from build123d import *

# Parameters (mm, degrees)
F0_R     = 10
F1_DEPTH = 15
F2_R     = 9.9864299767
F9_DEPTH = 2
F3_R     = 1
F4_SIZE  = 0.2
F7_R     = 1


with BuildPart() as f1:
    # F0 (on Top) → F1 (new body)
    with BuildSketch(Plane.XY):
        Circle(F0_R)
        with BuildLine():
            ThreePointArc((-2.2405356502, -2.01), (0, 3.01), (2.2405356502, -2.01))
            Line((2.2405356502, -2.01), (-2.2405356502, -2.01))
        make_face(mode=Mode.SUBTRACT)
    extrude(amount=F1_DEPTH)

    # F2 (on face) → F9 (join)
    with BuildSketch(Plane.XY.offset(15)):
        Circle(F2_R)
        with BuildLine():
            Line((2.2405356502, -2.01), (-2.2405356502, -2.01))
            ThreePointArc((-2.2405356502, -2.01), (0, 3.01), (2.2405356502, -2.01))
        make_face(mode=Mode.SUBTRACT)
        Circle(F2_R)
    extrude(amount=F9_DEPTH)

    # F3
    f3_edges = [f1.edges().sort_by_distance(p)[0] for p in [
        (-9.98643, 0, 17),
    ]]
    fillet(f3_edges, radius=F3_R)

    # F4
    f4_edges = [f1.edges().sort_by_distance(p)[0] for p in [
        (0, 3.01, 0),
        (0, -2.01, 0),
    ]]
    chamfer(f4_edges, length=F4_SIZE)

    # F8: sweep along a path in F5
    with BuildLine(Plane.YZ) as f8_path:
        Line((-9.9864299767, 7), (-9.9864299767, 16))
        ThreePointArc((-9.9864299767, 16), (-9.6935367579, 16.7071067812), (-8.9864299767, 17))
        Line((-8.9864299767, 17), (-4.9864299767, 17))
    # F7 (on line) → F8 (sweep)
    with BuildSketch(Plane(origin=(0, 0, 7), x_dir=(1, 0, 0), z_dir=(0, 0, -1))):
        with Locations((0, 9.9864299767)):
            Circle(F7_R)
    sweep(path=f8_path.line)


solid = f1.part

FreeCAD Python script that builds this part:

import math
import FreeCAD as App
import Part
import Sketcher
from FreeCAD import Vector
Q = App.Units.Quantity


def edges_at(feature, points):
    """Names of the edges that pass closest to the given points."""
    edges = feature.Shape.Edges
    near = lambda p: min(range(len(edges)), key=lambda i: edges[i].distToShape(Part.Vertex(*p))[0])
    return sorted({f"Edge{near(p) + 1}" for p in points})

doc = App.newDocument("Part")
body = doc.addObject("PartDesign::Body", "Body")

# Sketch on XY plane
sketch1 = body.newObject("Sketcher::SketchObject", "Sketch")
sketch1.AttachmentSupport = (doc.getObject("XY_Plane"), [""])
sketch1.MapMode = "FlatFace"
sketch1.addGeometry(Part.Circle(Vector(0, 0, 0), Vector(0, 0, 1), 10), False)
sketch1.addGeometry(Part.LineSegment(Vector(2.2, -2, 0), Vector(-2.2, -2, 0)), False)
sketch1.addGeometry(Part.ArcOfCircle(Part.Circle(Vector(0, 0, 0), Vector(0, 0, 1), 3), math.radians(-42), math.radians(222)), False)
sketch1.addConstraint(Sketcher.Constraint("Coincident", 1, 1, 2, 1))
sketch1.addConstraint(Sketcher.Constraint("Coincident", 2, 2, 1, 2))
sketch1.addConstraint(Sketcher.Constraint("Horizontal", 1))
sketch1.addConstraint(Sketcher.Constraint("Coincident", 0, 3, -1, 1))
sketch1.addConstraint(Sketcher.Constraint("Coincident", 2, 3, -1, 1))
sketch1.addConstraint(Sketcher.Constraint("Diameter", 0, Q("20 mm")))
sketch1.addConstraint(Sketcher.Constraint("Radius", 2, Q("3.01 mm")))
sketch1.addConstraint(Sketcher.Constraint("DistanceY", 1, 1, -1, 1, Q("2.01 mm")))
pad1 = body.newObject("PartDesign::Pad", "Pad")
pad1.Profile = sketch1
pad1.Length = 15

# Sketch on XY plane
sketch2 = body.newObject("Sketcher::SketchObject", "Sketch001")
sketch2.AttachmentSupport = (doc.getObject("XY_Plane"), [""])
sketch2.MapMode = "FlatFace"
sketch2.AttachmentOffset = App.Placement(Vector(0, 0, 15), App.Rotation())
sketch2.addGeometry(Part.Circle(Vector(0, 0, 0), Vector(0, 0, 1), 10), False)
sketch2.addConstraint(Sketcher.Constraint("Coincident", 0, 3, -1, 1))
sketch2.addConstraint(Sketcher.Constraint("Diameter", 0, Q("19.97286 mm")))
pad2 = body.newObject("PartDesign::Pad", "Pad001")
pad2.Profile = sketch2
pad2.Length = 2
doc.recompute()

fillet = body.newObject("PartDesign::Fillet", "Fillet")
fillet.Base = (pad2, edges_at(pad2, [(-9.986, 0, 17)]))
fillet.Radius = 1
doc.recompute()

chamfer = body.newObject("PartDesign::Chamfer", "Chamfer")
chamfer.Base = (fillet, edges_at(fillet, [(0, 3.01, 0), (0, -2.01, 0)]))
chamfer.Size = 0.2

# Sketch on XY plane
sketch3 = body.newObject("Sketcher::SketchObject", "Sketch002")
sketch3.AttachmentSupport = (doc.getObject("XY_Plane"), [""])
sketch3.MapMode = "FlatFace"
sketch3.AttachmentOffset = App.Placement(Vector(0, 0, 7), App.Rotation())
sketch3.addGeometry(Part.Circle(Vector(0, -10, 0), Vector(0, 0, 1), 1), False)
sketch3.addConstraint(Sketcher.Constraint("PointOnObject", 0, 3, -2))
sketch3.addConstraint(Sketcher.Constraint("Diameter", 0, Q("2 mm")))
sketch3.addConstraint(Sketcher.Constraint("DistanceY", 0, 3, -1, 1, Q("9.98643 mm")))

# Sketch on YZ plane
sketch4 = body.newObject("Sketcher::SketchObject", "Sketch003")
sketch4.AttachmentSupport = (doc.getObject("YZ_Plane"), [""])
sketch4.MapMode = "FlatFace"
sketch4.addGeometry(Part.LineSegment(Vector(-10, 7, 0), Vector(-10, 16, 0)), False)
sketch4.addGeometry(Part.ArcOfCircle(Part.Circle(Vector(-9, 16, 0), Vector(0, 0, 1), 1), math.radians(90), math.radians(180)), False)
sketch4.addGeometry(Part.LineSegment(Vector(-9, 17, 0), Vector(-5, 17, 0)), False)
sketch4.addConstraint(Sketcher.Constraint("Tangent", 0, 2, 1, 2))
sketch4.addConstraint(Sketcher.Constraint("Tangent", 1, 1, 2, 1))
sketch4.addConstraint(Sketcher.Constraint("Vertical", 0))
sketch4.addConstraint(Sketcher.Constraint("Horizontal", 2))
sketch4.addConstraint(Sketcher.Constraint("Radius", 1, Q("1 mm")))
sketch4.addConstraint(Sketcher.Constraint("DistanceX", 2, 1, 2, 2, Q("4 mm")))
sketch4.addConstraint(Sketcher.Constraint("DistanceY", 0, 1, 0, 2, Q("9 mm")))
sketch4.addConstraint(Sketcher.Constraint("DistanceY", -1, 1, 1, 3, Q("16 mm")))
sketch4.addConstraint(Sketcher.Constraint("DistanceX", 1, 3, -1, 1, Q("8.98643 mm")))
doc.recompute()

additivepipe = body.newObject("PartDesign::AdditivePipe", "AdditivePipe")
additivepipe.Profile = sketch3
additivepipe.Spine = (sketch4, ["Edge1", "Edge2", "Edge3"])

doc.recompute()
